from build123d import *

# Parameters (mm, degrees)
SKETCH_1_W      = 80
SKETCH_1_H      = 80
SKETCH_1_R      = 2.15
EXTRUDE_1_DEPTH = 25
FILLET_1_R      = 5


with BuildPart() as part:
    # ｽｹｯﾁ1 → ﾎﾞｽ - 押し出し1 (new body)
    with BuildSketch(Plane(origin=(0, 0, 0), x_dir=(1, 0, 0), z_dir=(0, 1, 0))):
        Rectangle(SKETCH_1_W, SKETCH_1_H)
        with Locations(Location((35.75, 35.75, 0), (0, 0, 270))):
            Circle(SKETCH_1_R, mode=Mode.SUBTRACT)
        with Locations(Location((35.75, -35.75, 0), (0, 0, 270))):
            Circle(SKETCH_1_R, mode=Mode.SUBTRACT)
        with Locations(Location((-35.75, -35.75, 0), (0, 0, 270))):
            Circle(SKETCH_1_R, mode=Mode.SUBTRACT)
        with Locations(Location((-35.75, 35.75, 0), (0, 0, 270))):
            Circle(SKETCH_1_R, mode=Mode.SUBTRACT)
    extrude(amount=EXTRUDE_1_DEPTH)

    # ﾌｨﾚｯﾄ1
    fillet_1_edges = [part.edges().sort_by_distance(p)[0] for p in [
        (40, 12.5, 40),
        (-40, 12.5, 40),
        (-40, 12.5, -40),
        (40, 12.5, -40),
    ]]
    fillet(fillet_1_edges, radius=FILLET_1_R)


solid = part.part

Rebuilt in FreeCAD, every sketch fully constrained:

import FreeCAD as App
import Part
import Sketcher

V = App.Vector


def edges_at(feature, points):
    """Names of the edges that pass closest to the given points."""
    edges = feature.Shape.Edges
    near = lambda p: min(range(len(edges)), key=lambda i: edges[i].distToShape(Part.Vertex(*p))[0])
    return sorted({f"Edge{near(p) + 1}" for p in points})


def add_polygon(sketch, points):
    """Adds a closed chain of lines whose ends are joined by coincident constraints."""
    first, n = sketch.GeometryCount, len(points)
    for a, b in zip(points, points[1:] + points[:1]):
        sketch.addGeometry(Part.LineSegment(App.Vector(*a, 0), App.Vector(*b, 0)), False)
    for i in range(n):
        sketch.addConstraint(Sketcher.Constraint("Coincident", first + i, 2, first + (i + 1) % n, 1))

doc = App.newDocument("Part")
body = doc.addObject("PartDesign::Body", "Body")

sketch1 = body.newObject("Sketcher::SketchObject", "Sketch")
sketch1.AttachmentSupport = (doc.getObject("XZ_Plane"), [""])
sketch1.MapMode = "FlatFace"
add_polygon(sketch1, [(-40, -40), (-40, 40), (40, 40), (40, -40)])
sketch1.addGeometry(Part.Circle(V(-35.8, 35.8, 0), V(0, 0, 1), 2.1), False)
sketch1.addGeometry(Part.Circle(V(35.8, 35.8, 0), V(0, 0, 1), 2.1), False)
sketch1.addGeometry(Part.Circle(V(-35.8, -35.8, 0), V(0, 0, 1), 2.1), False)
sketch1.addGeometry(Part.Circle(V(35.8, -35.8, 0), V(0, 0, 1), 2.1), False)
sketch1.addConstraint(Sketcher.Constraint("Vertical", 0))
sketch1.addConstraint(Sketcher.Constraint("Horizontal", 1))
sketch1.addConstraint(Sketcher.Constraint("Vertical", 2))
sketch1.addConstraint(Sketcher.Constraint("Horizontal", 3))
sketch1.addConstraint(Sketcher.Constraint("Equal", 4, 5))
sketch1.addConstraint(Sketcher.Constraint("Equal", 5, 6))
sketch1.addConstraint(Sketcher.Constraint("Equal", 6, 7))
sketch1.addConstraint(Sketcher.Constraint("Symmetric", 5, 3, 6, 3, -1, 1))
sketch1.addConstraint(Sketcher.Constraint("Symmetric", 4, 3, 7, 3, -1, 1))
sketch1.addConstraint(Sketcher.Constraint("Symmetric", 0, 2, 2, 2, -1, 1))
sketch1.addConstraint(Sketcher.Constraint("Symmetric", 4, 3, 5, 3, -2))
sketch1.addConstraint(Sketcher.Constraint("Equal", 3, 0))
sketch1.addConstraint(Sketcher.Constraint("Diameter", 4, 4.3))
sketch1.addConstraint(Sketcher.Constraint("DistanceX", 1, 1, 1, 2, 80.0))
sketch1.addConstraint(Sketcher.Constraint("DistanceX", 4, 3, 5, 3, 71.5))
sketch1.addConstraint(Sketcher.Constraint("DistanceY", 6, 3, 4, 3, 71.5))
pad1 = body.newObject("PartDesign::Pad", "Pad")
pad1.Profile = sketch1
pad1.Length = 25
pad1.Reversed = True
doc.recompute()

fillet = body.newObject("PartDesign::Fillet", "Fillet")
fillet.Base = (pad1, edges_at(pad1, [
    (40, 12.5, 40),
    (-40, 12.5, 40),
    (-40, 12.5, -40),
    (40, 12.5, -40),
]))
fillet.Radius = 5

doc.recompute()
